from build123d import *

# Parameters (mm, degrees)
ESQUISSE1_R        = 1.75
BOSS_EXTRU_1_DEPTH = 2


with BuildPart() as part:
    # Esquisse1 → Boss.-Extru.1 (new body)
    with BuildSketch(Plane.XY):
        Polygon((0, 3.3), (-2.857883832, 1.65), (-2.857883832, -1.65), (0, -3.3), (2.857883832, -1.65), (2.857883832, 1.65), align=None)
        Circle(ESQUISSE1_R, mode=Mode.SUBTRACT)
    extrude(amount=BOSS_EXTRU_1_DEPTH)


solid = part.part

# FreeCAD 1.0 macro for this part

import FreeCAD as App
import Part
import Sketcher
from FreeCAD import Vector
Q = App.Units.Quantity

doc = App.newDocument("Part")
body = doc.addObject("PartDesign::Body", "Body")

sketch1 = doc.addObject("Sketcher::SketchObject", "Sketch")
body.addObject(sketch1)
sketch1.AttachmentSupport = (doc.XY_Plane, [""])
sketch1.MapMode = "FlatFace"
sketch1.addGeometry(Part.LineSegment(Vector(0, 3.3, 0), Vector(-2.9, 1.6, 0)), False)
sketch1.addGeometry(Part.LineSegment(Vector(-2.9, 1.6, 0), Vector(-2.9, -1.6, 0)), False)
sketch1.addGeometry(Part.LineSegment(Vector(-2.9, -1.6, 0), Vector(0, -3.3, 0)), False)
sketch1.addGeometry(Part.LineSegment(Vector(0, -3.3, 0), Vector(2.9, -1.6, 0)), False)
sketch1.addGeometry(Part.LineSegment(Vector(2.9, -1.6, 0), Vector(2.9, 1.6, 0)), False)
sketch1.addGeometry(Part.LineSegment(Vector(2.9, 1.6, 0), Vector(0, 3.3, 0)), False)
sketch1.addGeometry(Part.Circle(Vector(0, 0, 0), Vector(0, 0, 1), 1.8), False)
sketch1.addConstraint(Sketcher.Constraint("Coincident", 0, 2, 1, 1))
sketch1.addConstraint(Sketcher.Constraint("Coincident", 1, 2, 2, 1))
sketch1.addConstraint(Sketcher.Constraint("Coincident", 2, 2, 3, 1))
sketch1.addConstraint(Sketcher.Constraint("Coincident", 3, 2, 4, 1))
sketch1.addConstraint(Sketcher.Constraint("Coincident", 4, 2, 5, 1))
sketch1.addConstraint(Sketcher.Constraint("Coincident", 5, 2, 0, 1))
sketch1.addConstraint(Sketcher.Constraint("Vertical", 1))
sketch1.addConstraint(Sketcher.Constraint("Vertical", 4))
sketch1.addConstraint(Sketcher.Constraint("Coincident", 6, 3, -1, 1))
sketch1.addConstraint(Sketcher.Constraint("Symmetric", 0, 2, 3, 2, -1, 1))
sketch1.addConstraint(Sketcher.Constraint("Symmetric", 2, 2, 5, 2, -1, 1))
sketch1.addConstraint(Sketcher.Constraint("PointOnObject", 2, 2, -2))
sketch1.addConstraint(Sketcher.Constraint("Parallel", 2, 5))
sketch1.addConstraint(Sketcher.Constraint("Horizontal", 1, 2, 3, 2))
sketch1.addConstraint(Sketcher.Constraint("Diameter", 6, Q("3.5 mm")))
sketch1.addConstraint(Sketcher.Constraint("Angle", 0, Q("-150 deg")))
sketch1.addConstraint(Sketcher.Constraint("DistanceY", 1, 2, 1, 1, Q("3.3 mm")))
sketch1.addConstraint(Sketcher.Constraint("Distance", 0, Q("3.3 mm")))
pad1 = doc.addObject("PartDesign::Pad", "Pad")
body.addObject(pad1)
pad1.Profile = sketch1
pad1.Length = 2

doc.recompute()
